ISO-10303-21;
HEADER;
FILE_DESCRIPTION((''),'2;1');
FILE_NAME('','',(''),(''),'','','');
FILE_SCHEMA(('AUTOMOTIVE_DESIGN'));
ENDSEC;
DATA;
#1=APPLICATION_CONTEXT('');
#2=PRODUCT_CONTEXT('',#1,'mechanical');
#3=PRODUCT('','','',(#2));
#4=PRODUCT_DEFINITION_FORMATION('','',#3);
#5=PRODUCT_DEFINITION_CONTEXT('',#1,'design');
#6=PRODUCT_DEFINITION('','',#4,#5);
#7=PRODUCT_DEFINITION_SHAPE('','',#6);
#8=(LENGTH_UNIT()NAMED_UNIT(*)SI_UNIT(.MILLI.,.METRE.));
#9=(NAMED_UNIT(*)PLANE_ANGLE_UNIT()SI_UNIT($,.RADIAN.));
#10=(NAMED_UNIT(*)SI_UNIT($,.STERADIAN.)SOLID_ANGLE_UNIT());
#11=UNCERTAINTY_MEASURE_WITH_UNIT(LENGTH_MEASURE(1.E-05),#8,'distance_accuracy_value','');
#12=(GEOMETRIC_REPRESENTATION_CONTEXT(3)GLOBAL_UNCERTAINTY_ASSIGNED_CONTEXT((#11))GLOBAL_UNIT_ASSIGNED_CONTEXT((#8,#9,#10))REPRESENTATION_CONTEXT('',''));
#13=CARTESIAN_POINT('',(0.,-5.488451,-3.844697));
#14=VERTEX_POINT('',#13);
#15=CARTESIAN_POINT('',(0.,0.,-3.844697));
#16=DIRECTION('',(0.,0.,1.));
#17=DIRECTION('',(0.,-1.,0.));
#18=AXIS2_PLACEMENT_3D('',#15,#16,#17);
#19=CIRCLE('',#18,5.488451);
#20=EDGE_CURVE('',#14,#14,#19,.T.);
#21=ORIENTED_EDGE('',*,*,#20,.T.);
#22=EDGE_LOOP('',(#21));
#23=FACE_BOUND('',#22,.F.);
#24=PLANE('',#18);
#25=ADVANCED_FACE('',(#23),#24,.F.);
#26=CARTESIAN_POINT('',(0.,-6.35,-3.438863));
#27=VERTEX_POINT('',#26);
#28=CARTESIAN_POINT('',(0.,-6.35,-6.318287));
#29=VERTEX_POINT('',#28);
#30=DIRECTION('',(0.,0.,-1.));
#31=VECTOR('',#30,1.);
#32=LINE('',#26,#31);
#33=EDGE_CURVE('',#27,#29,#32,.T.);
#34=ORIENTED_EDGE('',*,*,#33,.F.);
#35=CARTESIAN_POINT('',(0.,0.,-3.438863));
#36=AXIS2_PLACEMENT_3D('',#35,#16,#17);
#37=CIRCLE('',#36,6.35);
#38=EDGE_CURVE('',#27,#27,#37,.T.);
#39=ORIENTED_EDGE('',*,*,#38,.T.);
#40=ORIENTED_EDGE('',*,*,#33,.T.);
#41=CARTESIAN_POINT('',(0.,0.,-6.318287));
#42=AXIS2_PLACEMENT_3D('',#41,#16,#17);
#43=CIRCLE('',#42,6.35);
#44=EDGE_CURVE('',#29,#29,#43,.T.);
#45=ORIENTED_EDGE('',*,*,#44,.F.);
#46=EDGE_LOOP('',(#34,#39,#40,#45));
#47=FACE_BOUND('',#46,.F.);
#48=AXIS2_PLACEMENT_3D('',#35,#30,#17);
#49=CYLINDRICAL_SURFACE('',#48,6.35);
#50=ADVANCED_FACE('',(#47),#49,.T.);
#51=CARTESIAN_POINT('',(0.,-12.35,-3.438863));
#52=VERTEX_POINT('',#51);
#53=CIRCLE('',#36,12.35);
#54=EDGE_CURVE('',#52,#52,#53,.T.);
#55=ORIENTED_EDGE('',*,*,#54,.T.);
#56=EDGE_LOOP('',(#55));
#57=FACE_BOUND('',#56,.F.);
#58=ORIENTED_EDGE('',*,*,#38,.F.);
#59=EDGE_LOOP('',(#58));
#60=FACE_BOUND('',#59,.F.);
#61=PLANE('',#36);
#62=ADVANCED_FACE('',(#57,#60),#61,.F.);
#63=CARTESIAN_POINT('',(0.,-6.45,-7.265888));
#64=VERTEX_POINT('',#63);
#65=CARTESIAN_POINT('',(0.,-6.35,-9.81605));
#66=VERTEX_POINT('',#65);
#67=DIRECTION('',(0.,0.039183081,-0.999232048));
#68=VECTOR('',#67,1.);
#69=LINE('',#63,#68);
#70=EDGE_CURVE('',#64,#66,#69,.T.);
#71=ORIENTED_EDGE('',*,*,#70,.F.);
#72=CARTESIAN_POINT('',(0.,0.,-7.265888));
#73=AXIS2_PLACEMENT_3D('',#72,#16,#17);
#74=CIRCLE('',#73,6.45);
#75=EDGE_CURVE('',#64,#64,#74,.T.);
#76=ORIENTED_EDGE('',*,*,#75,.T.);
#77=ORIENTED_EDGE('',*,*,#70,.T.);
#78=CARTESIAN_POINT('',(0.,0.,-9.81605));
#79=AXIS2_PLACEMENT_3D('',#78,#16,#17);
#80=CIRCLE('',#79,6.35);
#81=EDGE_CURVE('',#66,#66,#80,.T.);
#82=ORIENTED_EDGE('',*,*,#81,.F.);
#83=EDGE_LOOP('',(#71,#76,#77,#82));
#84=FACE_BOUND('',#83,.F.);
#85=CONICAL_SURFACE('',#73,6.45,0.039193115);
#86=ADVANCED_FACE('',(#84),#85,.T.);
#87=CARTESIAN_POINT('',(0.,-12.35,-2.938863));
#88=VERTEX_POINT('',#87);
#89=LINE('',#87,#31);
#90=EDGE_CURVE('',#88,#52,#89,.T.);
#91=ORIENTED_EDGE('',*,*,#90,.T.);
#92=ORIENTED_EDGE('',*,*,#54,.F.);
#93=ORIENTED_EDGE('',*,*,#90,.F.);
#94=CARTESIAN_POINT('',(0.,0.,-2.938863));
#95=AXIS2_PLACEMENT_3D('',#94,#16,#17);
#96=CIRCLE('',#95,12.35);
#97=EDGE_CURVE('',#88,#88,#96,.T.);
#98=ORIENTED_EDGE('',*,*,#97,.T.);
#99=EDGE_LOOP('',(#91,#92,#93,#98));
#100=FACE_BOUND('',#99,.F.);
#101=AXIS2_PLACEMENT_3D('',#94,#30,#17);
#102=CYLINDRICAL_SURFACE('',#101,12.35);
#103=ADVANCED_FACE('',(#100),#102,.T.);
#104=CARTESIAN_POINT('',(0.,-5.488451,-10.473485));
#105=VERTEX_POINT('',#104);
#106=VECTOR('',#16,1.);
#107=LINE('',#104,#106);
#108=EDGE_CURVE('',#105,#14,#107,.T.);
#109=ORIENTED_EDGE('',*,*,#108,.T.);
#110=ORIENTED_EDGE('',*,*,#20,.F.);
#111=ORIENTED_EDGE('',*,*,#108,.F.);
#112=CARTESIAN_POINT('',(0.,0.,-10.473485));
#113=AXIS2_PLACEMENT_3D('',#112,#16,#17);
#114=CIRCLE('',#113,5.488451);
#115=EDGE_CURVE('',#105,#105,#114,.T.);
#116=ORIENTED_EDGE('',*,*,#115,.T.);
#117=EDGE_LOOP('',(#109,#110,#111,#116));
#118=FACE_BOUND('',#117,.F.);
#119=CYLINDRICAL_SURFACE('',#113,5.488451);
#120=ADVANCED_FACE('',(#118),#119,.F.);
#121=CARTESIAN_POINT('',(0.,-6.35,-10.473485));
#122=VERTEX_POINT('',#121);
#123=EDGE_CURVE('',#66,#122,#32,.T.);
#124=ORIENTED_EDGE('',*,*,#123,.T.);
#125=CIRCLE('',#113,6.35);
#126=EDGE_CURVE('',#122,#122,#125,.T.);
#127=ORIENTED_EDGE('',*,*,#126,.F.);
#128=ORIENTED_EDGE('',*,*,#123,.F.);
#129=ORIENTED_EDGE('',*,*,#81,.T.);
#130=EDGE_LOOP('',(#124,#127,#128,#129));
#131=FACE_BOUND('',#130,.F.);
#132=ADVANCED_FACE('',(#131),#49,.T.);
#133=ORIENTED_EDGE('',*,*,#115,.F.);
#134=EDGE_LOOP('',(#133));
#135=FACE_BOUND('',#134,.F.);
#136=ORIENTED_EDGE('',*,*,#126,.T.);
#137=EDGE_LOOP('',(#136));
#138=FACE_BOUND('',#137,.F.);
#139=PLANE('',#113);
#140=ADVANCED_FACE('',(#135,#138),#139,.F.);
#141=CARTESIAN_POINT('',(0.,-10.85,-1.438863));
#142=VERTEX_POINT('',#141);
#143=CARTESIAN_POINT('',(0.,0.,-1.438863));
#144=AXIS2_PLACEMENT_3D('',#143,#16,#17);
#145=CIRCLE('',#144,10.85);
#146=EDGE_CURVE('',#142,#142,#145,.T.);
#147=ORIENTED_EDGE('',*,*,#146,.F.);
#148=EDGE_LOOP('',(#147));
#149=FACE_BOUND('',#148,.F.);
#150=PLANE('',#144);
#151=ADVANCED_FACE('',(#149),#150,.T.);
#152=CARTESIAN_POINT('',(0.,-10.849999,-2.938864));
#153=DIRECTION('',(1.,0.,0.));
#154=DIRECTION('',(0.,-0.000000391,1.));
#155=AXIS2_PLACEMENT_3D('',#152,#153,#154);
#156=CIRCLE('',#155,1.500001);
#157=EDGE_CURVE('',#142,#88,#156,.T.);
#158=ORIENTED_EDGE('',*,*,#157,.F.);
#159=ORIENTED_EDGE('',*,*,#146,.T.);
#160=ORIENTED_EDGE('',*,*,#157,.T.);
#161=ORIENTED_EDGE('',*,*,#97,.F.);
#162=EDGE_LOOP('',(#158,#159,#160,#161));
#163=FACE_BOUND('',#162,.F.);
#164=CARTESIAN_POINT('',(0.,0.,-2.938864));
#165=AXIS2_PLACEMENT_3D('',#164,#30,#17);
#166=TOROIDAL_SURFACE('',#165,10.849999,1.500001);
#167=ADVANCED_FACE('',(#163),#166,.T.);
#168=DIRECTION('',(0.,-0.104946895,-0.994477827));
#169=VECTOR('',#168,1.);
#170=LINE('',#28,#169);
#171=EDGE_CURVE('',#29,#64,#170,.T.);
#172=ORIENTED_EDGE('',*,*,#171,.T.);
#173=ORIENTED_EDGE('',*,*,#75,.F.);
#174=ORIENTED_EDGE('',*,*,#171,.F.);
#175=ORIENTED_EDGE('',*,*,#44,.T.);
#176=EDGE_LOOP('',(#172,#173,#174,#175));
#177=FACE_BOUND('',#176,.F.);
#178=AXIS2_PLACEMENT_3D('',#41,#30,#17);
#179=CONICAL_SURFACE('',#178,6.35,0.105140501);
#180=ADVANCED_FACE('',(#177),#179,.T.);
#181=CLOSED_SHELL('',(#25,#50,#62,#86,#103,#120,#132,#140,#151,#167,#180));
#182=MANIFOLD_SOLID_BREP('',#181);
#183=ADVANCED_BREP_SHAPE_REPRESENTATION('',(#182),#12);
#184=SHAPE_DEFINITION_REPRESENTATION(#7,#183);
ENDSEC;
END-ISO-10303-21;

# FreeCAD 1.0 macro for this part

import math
import FreeCAD as App
import Part
import Sketcher
Q = App.Units.Quantity

doc = App.newDocument("Part")
body = doc.addObject("PartDesign::Body", "Body")

# Sketch on YZ plane
sketch1 = body.newObject("Sketcher::SketchObject", "Sketch")
sketch1.AttachmentSupport = (doc.getObject("YZ_Plane"), [""])
sketch1.MapMode = "FlatFace"
sketch1.addGeometry([
    Part.LineSegment(App.Vector(-6.35, -10.473485, 0), App.Vector(-5.488451, -10.473485, 0)),  # 0
    Part.LineSegment(App.Vector(-5.488451, -10.473485, 0), App.Vector(-5.488451, -3.844697, 0)),  # 1
    Part.LineSegment(App.Vector(-5.488451, -3.844697, 0), App.Vector(0, -3.844697, 0)),  # 2
    Part.LineSegment(App.Vector(0, -3.844697, 0), App.Vector(0, -1.438863, 0)),  # 3
    Part.LineSegment(App.Vector(0, -1.438863, 0), App.Vector(-10.85, -1.438863, 0)),  # 4
    Part.ArcOfCircle(Part.Circle(App.Vector(-10.849999, -2.938864, 0), App.Vector(0, 0, 1), 1.500001), math.radians(90.000022), math.radians(179.999978)),  # 5
    Part.LineSegment(App.Vector(-12.35, -2.938863, 0), App.Vector(-12.35, -3.438863, 0)),  # 6
    Part.LineSegment(App.Vector(-12.35, -3.438863, 0), App.Vector(-6.35, -3.438863, 0)),  # 7
    Part.LineSegment(App.Vector(-6.35, -3.438863, 0), App.Vector(-6.35, -6.318287, 0)),  # 8
    Part.LineSegment(App.Vector(-6.35, -6.318287, 0), App.Vector(-6.45, -7.265888, 0)),  # 9
    Part.LineSegment(App.Vector(-6.45, -7.265888, 0), App.Vector(-6.35, -9.81605, 0)),  # 10
    Part.LineSegment(App.Vector(-6.35, -9.81605, 0), App.Vector(-6.35, -10.473485, 0)),  # 11
], False)
sketch1.addConstraint([
    Sketcher.Constraint("Coincident", 0, 2, 1, 1),
    Sketcher.Constraint("Coincident", 1, 2, 2, 1),
    Sketcher.Constraint("Coincident", 2, 2, 3, 1),
    Sketcher.Constraint("Coincident", 3, 2, 4, 1),
    Sketcher.Constraint("Tangent", 4, 2, 5, 1),
    Sketcher.Constraint("Tangent", 5, 2, 6, 1),
    Sketcher.Constraint("Coincident", 6, 2, 7, 1),
    Sketcher.Constraint("Coincident", 7, 2, 8, 1),
    Sketcher.Constraint("Coincident", 8, 2, 9, 1),
    Sketcher.Constraint("Coincident", 9, 2, 10, 1),
    Sketcher.Constraint("Coincident", 10, 2, 11, 1),
    Sketcher.Constraint("Coincident", 11, 2, 0, 1),
    Sketcher.Constraint("Horizontal", 0),
    Sketcher.Constraint("Vertical", 1),
    Sketcher.Constraint("Horizontal", 2),
    Sketcher.Constraint("Vertical", 3),
    Sketcher.Constraint("Horizontal", 4),
    Sketcher.Constraint("Vertical", 6),
    Sketcher.Constraint("Horizontal", 7),
    Sketcher.Constraint("Vertical", 8),
    Sketcher.Constraint("Vertical", 11),
    Sketcher.Constraint("PointOnObject", 2, 2, -2),
    Sketcher.Constraint("Vertical", 8, 2, 10, 2),
    Sketcher.Constraint("Radius", 5, Q("1.500001 mm")),
    Sketcher.Constraint("DistanceX", 7, 1, 7, 2, Q("6 mm")),
    Sketcher.Constraint("DistanceY", 6, 2, 6, 1, Q("0.5 mm")),
    Sketcher.Constraint("DistanceX", 4, 2, 4, 1, Q("10.85 mm")),
    Sketcher.Constraint("DistanceX", 9, 2, 8, 2, Q("0.1 mm")),
    Sketcher.Constraint("DistanceX", 0, 1, 0, 2, Q("0.861549 mm")),
    Sketcher.Constraint("DistanceY", 0, 2, 8, 2, Q("4.155198 mm")),
    Sketcher.Constraint("DistanceY", 9, 2, 8, 2, Q("0.947601 mm")),
    Sketcher.Constraint("Distance", 10, Q("2.552122 mm")),
    Sketcher.Constraint("DistanceY", 1, 1, 1, 2, Q("6.628788 mm")),
    Sketcher.Constraint("DistanceY", 3, 1, 3, 2, Q("2.405834 mm")),
    Sketcher.Constraint("DistanceY", 9, 2, -1, 1, Q("7.265888 mm")),
])
revolution = body.newObject("PartDesign::Revolution", "Revolution")
revolution.Profile = sketch1
revolution.ReferenceAxis = (sketch1, ["V_Axis"])
revolution.Angle = 360

doc.recompute()
